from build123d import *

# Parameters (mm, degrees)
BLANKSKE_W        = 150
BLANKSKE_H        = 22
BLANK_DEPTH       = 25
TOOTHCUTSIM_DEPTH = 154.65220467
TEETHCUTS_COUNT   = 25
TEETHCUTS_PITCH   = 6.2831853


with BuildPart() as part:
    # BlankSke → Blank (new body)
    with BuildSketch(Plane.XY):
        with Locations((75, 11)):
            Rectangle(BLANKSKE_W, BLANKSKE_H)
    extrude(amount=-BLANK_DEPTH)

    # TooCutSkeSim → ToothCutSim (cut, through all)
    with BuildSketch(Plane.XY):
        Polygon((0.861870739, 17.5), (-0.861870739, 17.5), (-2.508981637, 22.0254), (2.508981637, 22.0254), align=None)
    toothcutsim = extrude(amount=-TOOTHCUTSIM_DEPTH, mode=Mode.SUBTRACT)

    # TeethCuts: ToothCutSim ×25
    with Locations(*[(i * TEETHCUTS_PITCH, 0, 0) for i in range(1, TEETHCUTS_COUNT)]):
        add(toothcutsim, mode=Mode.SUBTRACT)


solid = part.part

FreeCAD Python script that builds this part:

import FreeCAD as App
import Part
import Sketcher
from FreeCAD import Vector
Q = App.Units.Quantity

doc = App.newDocument("Part")
params = doc.addObject("Spreadsheet::Sheet", "Params")
for row, (alias, value) in enumerate([
    ("sketch1_width", "150 mm"),
    ("sketch1_height", "22 mm"),
    ("pad1_length", "25 mm"),
    ("linearpattern_pitch", "6.283185 mm"),
], start=1):
    params.set(f"A{row}", alias)
    params.set(f"B{row}", "=" + value)
    params.setAlias(f"B{row}", alias)

body = doc.addObject("PartDesign::Body", "Body")

# Sketch on XY plane
sketch1 = doc.addObject("Sketcher::SketchObject", "Sketch")
body.addObject(sketch1)
sketch1.AttachmentSupport = (doc.XY_Plane, [""])
sketch1.MapMode = "FlatFace"
sketch1.addGeometry(Part.LineSegment(Vector(0, 22, 0), Vector(0, 0, 0)), False)
sketch1.addGeometry(Part.LineSegment(Vector(0, 0, 0), Vector(150, 0, 0)), False)
sketch1.addGeometry(Part.LineSegment(Vector(150, 0, 0), Vector(150, 22, 0)), False)
sketch1.addGeometry(Part.LineSegment(Vector(150, 22, 0), Vector(0, 22, 0)), False)
sketch1.addConstraint(Sketcher.Constraint("Coincident", 0, 2, 1, 1))
sketch1.addConstraint(Sketcher.Constraint("Coincident", 1, 2, 2, 1))
sketch1.addConstraint(Sketcher.Constraint("Coincident", 2, 2, 3, 1))
sketch1.addConstraint(Sketcher.Constraint("Coincident", 3, 2, 0, 1))
sketch1.addConstraint(Sketcher.Constraint("Vertical", 0))
sketch1.addConstraint(Sketcher.Constraint("Horizontal", 1))
sketch1.addConstraint(Sketcher.Constraint("Vertical", 2))
sketch1.addConstraint(Sketcher.Constraint("Horizontal", 3))
sketch1.addConstraint(Sketcher.Constraint("Coincident", 0, 2, -1, 1))
sketch1.addConstraint(Sketcher.Constraint("DistanceX", 1, 1, 1, 2, 150.0))
sketch1.addConstraint(Sketcher.Constraint("DistanceY", 0, 2, 0, 1, 22.0))
sketch1.setExpression("Constraints[9]", "Params.sketch1_width")
sketch1.setExpression("Constraints[10]", "Params.sketch1_height")
pad1 = doc.addObject("PartDesign::Pad", "Pad")
body.addObject(pad1)
pad1.Profile = sketch1
pad1.setExpression("Length", "Params.pad1_length")
pad1.Reversed = True

# Sketch on XY plane
sketch2 = doc.addObject("Sketcher::SketchObject", "Sketch001")
body.addObject(sketch2)
sketch2.AttachmentSupport = (doc.XY_Plane, [""])
sketch2.MapMode = "FlatFace"
sketch2.addGeometry(Part.LineSegment(Vector(-0.861871, 17.5, 0), Vector(0.861871, 17.5, 0)), False)
sketch2.addGeometry(Part.LineSegment(Vector(0.861871, 17.5, 0), Vector(2.508982, 22.0254, 0)), False)
sketch2.addGeometry(Part.LineSegment(Vector(2.508982, 22.0254, 0), Vector(-2.508982, 22.0254, 0)), False)
sketch2.addGeometry(Part.LineSegment(Vector(-2.508982, 22.0254, 0), Vector(-0.861871, 17.5, 0)), False)
sketch2.addConstraint(Sketcher.Constraint("Coincident", 0, 2, 1, 1))
sketch2.addConstraint(Sketcher.Constraint("Coincident", 1, 2, 2, 1))
sketch2.addConstraint(Sketcher.Constraint("Coincident", 2, 2, 3, 1))
sketch2.addConstraint(Sketcher.Constraint("Coincident", 3, 2, 0, 1))
sketch2.addConstraint(Sketcher.Constraint("Horizontal", 0))
sketch2.addConstraint(Sketcher.Constraint("Horizontal", 2))
sketch2.addConstraint(Sketcher.Constraint("Equal", 1, 3))
sketch2.addConstraint(Sketcher.Constraint("Angle", 1, Q("70 deg")))
sketch2.addConstraint(Sketcher.Constraint("DistanceY", -1, 1, 0, 2, 17.5))
sketch2.addConstraint(Sketcher.Constraint("DistanceX", 0, 1, 0, 2, 1.723741))
sketch2.addConstraint(Sketcher.Constraint("DistanceY", -1, 1, 1, 2, 22.0254))
sketch2.addConstraint(Sketcher.Constraint("DistanceX", -1, 1, 0, 2, 0.861871))
pocket1 = doc.addObject("PartDesign::Pocket", "Pocket")
body.addObject(pocket1)
pocket1.Profile = sketch2
pocket1.Type = "ThroughAll"
doc.recompute()

linearpattern = doc.addObject("PartDesign::LinearPattern", "LinearPattern")
body.addObject(linearpattern)
linearpattern.Originals = [pocket1]
linearpattern.Direction = (doc.X_Axis, [""])
linearpattern.Mode = "offset"
linearpattern.setExpression("Offset", "Params.linearpattern_pitch")
linearpattern.Occurrences = 25
body.Tip = linearpattern

doc.recompute()
